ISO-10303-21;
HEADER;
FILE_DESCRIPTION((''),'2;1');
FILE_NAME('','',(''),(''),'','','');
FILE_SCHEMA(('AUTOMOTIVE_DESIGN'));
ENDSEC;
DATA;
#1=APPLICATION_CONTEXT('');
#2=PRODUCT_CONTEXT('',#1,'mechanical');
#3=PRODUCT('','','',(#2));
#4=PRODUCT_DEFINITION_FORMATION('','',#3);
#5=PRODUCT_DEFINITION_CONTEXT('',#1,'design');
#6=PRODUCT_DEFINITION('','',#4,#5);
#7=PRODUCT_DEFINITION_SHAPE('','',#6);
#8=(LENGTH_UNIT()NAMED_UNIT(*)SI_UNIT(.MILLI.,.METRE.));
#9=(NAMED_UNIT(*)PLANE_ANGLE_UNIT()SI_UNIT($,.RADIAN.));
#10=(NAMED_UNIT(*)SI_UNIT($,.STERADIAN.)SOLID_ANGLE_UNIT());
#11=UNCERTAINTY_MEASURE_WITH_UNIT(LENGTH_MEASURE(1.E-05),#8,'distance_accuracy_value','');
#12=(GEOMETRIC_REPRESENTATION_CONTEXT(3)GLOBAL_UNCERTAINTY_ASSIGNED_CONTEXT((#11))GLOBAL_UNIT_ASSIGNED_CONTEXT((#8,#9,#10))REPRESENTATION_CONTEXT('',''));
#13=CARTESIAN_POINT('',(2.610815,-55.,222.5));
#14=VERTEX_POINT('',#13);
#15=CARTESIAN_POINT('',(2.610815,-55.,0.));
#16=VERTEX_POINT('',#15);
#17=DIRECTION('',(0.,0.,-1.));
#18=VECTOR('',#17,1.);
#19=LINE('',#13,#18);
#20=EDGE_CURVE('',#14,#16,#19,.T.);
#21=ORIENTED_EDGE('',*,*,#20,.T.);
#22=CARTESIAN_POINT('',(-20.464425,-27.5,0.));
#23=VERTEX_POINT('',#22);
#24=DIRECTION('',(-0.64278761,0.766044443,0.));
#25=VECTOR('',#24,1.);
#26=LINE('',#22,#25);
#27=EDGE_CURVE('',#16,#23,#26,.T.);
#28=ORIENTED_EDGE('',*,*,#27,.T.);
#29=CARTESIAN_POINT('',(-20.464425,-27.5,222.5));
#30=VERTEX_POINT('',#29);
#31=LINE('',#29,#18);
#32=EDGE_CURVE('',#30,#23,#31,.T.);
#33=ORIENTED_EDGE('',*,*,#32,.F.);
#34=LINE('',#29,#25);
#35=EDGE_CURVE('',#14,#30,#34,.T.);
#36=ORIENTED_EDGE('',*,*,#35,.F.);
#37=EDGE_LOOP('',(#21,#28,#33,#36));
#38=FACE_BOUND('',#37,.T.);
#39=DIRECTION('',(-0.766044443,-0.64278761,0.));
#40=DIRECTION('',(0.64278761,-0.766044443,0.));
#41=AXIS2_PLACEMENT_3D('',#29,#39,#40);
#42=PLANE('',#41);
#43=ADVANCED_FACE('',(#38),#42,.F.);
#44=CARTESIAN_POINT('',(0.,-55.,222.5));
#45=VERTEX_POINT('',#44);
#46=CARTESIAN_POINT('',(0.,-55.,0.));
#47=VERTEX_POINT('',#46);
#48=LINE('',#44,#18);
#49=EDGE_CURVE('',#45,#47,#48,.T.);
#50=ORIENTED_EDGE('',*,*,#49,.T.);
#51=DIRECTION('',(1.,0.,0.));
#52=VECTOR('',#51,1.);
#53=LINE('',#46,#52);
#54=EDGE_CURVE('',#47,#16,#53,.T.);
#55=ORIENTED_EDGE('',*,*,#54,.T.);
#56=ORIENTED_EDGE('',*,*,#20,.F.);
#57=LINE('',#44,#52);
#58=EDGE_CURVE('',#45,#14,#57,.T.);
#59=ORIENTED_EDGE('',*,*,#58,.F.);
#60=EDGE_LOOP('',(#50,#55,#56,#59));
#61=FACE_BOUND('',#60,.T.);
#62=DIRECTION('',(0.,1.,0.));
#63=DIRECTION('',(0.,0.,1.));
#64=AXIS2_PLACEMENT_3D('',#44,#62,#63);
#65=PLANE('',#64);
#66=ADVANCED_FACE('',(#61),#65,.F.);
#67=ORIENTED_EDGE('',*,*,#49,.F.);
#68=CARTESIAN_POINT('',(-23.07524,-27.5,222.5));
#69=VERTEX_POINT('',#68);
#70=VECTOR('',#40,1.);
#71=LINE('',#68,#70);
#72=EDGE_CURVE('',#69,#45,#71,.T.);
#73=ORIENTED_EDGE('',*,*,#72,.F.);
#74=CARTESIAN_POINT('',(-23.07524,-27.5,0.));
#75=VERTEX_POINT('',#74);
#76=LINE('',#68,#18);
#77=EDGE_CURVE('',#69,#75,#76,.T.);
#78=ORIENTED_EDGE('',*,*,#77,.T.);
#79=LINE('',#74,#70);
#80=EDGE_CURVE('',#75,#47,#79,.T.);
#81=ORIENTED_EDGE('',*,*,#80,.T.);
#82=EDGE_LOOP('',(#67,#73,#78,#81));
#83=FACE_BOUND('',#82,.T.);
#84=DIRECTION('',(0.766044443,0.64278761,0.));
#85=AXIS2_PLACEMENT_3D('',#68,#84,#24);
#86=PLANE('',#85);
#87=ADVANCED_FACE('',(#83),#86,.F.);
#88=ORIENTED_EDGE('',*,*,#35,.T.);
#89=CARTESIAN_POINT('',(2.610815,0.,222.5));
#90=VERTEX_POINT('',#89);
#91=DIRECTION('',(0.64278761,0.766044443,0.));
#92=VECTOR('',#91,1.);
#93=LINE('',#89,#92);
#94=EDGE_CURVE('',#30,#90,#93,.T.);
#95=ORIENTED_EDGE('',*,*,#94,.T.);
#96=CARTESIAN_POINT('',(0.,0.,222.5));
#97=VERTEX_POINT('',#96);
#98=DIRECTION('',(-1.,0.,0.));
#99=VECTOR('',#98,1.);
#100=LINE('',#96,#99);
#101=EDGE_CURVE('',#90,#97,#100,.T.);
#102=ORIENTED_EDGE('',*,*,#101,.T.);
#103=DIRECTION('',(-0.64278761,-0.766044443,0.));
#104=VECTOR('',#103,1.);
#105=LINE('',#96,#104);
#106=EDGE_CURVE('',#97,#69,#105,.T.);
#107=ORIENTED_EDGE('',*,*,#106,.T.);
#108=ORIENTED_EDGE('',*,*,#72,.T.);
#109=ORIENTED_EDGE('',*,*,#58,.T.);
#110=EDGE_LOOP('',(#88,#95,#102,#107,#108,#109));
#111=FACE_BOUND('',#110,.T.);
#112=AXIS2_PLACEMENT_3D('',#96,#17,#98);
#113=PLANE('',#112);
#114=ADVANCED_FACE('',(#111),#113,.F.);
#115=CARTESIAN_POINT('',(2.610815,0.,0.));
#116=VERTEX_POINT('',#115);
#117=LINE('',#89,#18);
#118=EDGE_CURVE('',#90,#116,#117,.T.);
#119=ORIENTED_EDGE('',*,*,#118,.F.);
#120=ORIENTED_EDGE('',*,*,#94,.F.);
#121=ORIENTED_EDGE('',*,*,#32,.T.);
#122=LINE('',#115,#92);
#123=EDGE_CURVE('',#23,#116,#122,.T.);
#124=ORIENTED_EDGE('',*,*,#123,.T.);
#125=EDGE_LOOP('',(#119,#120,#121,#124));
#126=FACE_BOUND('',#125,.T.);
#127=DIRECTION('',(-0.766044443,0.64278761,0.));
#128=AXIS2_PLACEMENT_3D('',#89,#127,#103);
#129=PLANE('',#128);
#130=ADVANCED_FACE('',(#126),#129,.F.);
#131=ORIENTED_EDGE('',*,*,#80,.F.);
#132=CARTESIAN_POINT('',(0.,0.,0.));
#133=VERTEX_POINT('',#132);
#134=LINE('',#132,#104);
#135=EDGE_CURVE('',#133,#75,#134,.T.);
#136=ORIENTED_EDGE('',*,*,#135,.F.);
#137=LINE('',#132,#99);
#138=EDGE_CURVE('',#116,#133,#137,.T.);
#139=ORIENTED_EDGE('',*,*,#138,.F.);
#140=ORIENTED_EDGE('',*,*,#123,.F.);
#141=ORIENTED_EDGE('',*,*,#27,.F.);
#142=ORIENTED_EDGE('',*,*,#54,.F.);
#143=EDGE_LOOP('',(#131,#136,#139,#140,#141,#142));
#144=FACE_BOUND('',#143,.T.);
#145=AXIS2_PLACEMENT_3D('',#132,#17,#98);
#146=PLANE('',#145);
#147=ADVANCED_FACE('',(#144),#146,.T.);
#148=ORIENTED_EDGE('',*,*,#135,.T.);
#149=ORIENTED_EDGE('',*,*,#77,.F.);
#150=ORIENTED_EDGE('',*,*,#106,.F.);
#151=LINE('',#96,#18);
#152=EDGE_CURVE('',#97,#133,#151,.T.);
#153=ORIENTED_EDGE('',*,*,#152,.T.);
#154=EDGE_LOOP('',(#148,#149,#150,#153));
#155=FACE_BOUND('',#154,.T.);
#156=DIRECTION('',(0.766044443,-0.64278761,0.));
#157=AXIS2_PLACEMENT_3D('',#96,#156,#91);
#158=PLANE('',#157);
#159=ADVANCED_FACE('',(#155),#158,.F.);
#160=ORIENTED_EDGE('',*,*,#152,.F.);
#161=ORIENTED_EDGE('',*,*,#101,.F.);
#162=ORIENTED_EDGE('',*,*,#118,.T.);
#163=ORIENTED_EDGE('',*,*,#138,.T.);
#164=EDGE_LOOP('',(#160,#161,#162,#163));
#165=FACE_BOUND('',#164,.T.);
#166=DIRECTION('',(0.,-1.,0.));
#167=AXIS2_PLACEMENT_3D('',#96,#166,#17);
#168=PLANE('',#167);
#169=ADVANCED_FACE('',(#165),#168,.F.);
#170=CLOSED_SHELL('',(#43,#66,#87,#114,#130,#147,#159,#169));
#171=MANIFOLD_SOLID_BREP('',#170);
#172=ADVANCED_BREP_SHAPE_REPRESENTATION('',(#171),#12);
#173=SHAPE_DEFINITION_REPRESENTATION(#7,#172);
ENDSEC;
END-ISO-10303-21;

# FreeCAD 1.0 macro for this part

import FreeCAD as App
import Part
import Sketcher

V = App.Vector
Q = App.Units.Quantity


def add_polygon(sketch, points):
    """Adds a closed chain of lines whose ends are joined by coincident constraints."""
    first, n = sketch.GeometryCount, len(points)
    for a, b in zip(points, points[1:] + points[:1]):
        sketch.addGeometry(Part.LineSegment(App.Vector(*a, 0), App.Vector(*b, 0)), False)
    for i in range(n):
        sketch.addConstraint(Sketcher.Constraint("Coincident", first + i, 2, first + (i + 1) % n, 1))

doc = App.newDocument("Part")
params = doc.addObject("Spreadsheet::Sheet", "Params")
for row, (alias, value) in enumerate([
    ("pad1_length", "222.5 mm"),
], start=1):
    params.set(f"A{row}", alias)
    params.set(f"B{row}", "=" + value)
    params.setAlias(f"B{row}", alias)

body = doc.addObject("PartDesign::Body", "Body")

sketch1 = doc.addObject("Sketcher::SketchObject", "Sketch")
body.addObject(sketch1)
sketch1.AttachmentSupport = (doc.XY_Plane, [""])
sketch1.MapMode = "FlatFace"
add_polygon(sketch1, [(0, 0), (-23.1, -27.5), (0, -55), (2.6, -55), (-20.5, -27.5), (2.6, 0)])
sketch1.addConstraint(Sketcher.Constraint("Horizontal", 2))
sketch1.addConstraint(Sketcher.Constraint("Horizontal", 5))
sketch1.addConstraint(Sketcher.Constraint("Coincident", 5, 2, -1, 1))
sketch1.addConstraint(Sketcher.Constraint("PointOnObject", 1, 2, -2))
sketch1.addConstraint(Sketcher.Constraint("Parallel", 1, 3))
sketch1.addConstraint(Sketcher.Constraint("Parallel", 0, 4))
sketch1.addConstraint(Sketcher.Constraint("Horizontal", 0, 2, 3, 2))
sketch1.addConstraint(Sketcher.Constraint("Equal", 0, 1))
sketch1.addConstraint(Sketcher.Constraint("Angle", 0, Q("-130 deg")))
sketch1.addConstraint(Sketcher.Constraint("DistanceY", 1, 2, -1, 1, Q("55 mm")))
sketch1.addConstraint(Sketcher.Constraint("DistanceX", 2, 1, 2, 2, Q("2.610815 mm")))
pad1 = doc.addObject("PartDesign::Pad", "Pad")
body.addObject(pad1)
pad1.Profile = sketch1
pad1.setExpression("Length", "Params.pad1_length")

doc.recompute()
